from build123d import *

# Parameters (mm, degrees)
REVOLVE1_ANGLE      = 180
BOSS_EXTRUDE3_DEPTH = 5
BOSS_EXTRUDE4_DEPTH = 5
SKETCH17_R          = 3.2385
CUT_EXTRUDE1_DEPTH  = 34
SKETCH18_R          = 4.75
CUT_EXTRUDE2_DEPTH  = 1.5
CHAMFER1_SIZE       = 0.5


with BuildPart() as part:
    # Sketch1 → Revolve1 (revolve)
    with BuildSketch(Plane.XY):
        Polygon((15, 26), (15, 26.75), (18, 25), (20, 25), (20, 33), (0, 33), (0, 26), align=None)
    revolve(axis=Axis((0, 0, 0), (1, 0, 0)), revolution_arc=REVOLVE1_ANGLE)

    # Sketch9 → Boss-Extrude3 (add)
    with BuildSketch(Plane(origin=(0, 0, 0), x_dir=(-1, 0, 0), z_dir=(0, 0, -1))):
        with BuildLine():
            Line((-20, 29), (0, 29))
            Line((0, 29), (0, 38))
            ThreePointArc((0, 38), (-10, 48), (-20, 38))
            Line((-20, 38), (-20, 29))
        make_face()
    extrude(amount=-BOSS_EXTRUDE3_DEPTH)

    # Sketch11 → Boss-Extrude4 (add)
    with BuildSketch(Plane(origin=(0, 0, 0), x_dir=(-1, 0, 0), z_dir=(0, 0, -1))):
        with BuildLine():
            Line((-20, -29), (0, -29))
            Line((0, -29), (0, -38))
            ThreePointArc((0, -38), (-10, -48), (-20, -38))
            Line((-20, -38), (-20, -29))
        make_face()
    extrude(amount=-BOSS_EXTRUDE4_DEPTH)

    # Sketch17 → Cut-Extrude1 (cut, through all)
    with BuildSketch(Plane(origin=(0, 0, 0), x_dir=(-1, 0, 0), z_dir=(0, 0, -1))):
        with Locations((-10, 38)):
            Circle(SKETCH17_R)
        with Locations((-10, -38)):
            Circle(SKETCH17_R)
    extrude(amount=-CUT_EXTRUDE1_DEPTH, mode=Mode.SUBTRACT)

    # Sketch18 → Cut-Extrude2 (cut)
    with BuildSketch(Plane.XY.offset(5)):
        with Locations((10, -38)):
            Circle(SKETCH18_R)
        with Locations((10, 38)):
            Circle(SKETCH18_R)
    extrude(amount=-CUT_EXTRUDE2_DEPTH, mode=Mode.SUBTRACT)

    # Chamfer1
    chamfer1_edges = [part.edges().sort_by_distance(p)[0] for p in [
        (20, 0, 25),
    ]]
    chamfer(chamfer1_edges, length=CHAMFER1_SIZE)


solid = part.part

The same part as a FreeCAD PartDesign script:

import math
import FreeCAD as App
import Part
import Sketcher
Q = App.Units.Quantity


def edges_at(feature, points):
    """Names of the edges that pass closest to the given points."""
    edges = feature.Shape.Edges
    near = lambda p: min(range(len(edges)), key=lambda i: edges[i].distToShape(Part.Vertex(*p))[0])
    return sorted({f"Edge{near(p) + 1}" for p in points})

doc = App.newDocument("Part")
body = doc.addObject("PartDesign::Body", "Body")

sketch1 = doc.addObject("Sketcher::SketchObject", "Sketch")
body.addObject(sketch1)
sketch1.AttachmentSupport = (doc.XY_Plane, [""])
sketch1.MapMode = "FlatFace"
sketch1.addGeometry([
    Part.LineSegment(App.Vector(15, 26, 0), App.Vector(15, 26.75, 0)),
    Part.LineSegment(App.Vector(15, 26.75, 0), App.Vector(18, 25, 0)),
    Part.LineSegment(App.Vector(18, 25, 0), App.Vector(20, 25, 0)),
    Part.LineSegment(App.Vector(20, 25, 0), App.Vector(20, 33, 0)),
    Part.LineSegment(App.Vector(20, 33, 0), App.Vector(0, 33, 0)),
    Part.LineSegment(App.Vector(0, 33, 0), App.Vector(0, 26, 0)),
    Part.LineSegment(App.Vector(0, 26, 0), App.Vector(15, 26, 0)),
], False)
sketch1.addConstraint([
    Sketcher.Constraint("Coincident", 0, 2, 1, 1),
    Sketcher.Constraint("Coincident", 1, 2, 2, 1),
    Sketcher.Constraint("Coincident", 2, 2, 3, 1),
    Sketcher.Constraint("Coincident", 3, 2, 4, 1),
    Sketcher.Constraint("Coincident", 4, 2, 5, 1),
    Sketcher.Constraint("Coincident", 5, 2, 6, 1),
    Sketcher.Constraint("Coincident", 6, 2, 0, 1),
    Sketcher.Constraint("Vertical", 0),
    Sketcher.Constraint("Horizontal", 2),
    Sketcher.Constraint("Vertical", 3),
    Sketcher.Constraint("Horizontal", 4),
    Sketcher.Constraint("Vertical", 5),
    Sketcher.Constraint("Horizontal", 6),
    Sketcher.Constraint("PointOnObject", 4, 2, -2),
    Sketcher.Constraint("DistanceX", 2, 1, 2, 2, Q("2 mm")),
    Sketcher.Constraint("DistanceX", 4, 2, 4, 1, Q("20 mm")),
    Sketcher.Constraint("DistanceX", 6, 1, 6, 2, Q("15 mm")),
    Sketcher.Constraint("DistanceY", 3, 1, 3, 2, Q("8 mm")),
    Sketcher.Constraint("DistanceY", 5, 2, 5, 1, Q("7 mm")),
    Sketcher.Constraint("DistanceY", -1, 1, 1, 2, Q("25 mm")),
    Sketcher.Constraint("DistanceY", 0, 1, 0, 2, Q("0.75 mm")),
])
revolution = doc.addObject("PartDesign::Revolution", "Revolution")
body.addObject(revolution)
revolution.Profile = sketch1
revolution.ReferenceAxis = (sketch1, ["H_Axis"])
revolution.Angle = 180

sketch2 = doc.addObject("Sketcher::SketchObject", "Sketch001")
body.addObject(sketch2)
sketch2.AttachmentSupport = (doc.XY_Plane, [""])
sketch2.MapMode = "FlatFace"
sketch2.addGeometry([
    Part.LineSegment(App.Vector(20, 29, 0), App.Vector(0, 29, 0)),
    Part.LineSegment(App.Vector(0, 29, 0), App.Vector(0, 38, 0)),
    Part.ArcOfCircle(Part.Circle(App.Vector(10, 38, 0), App.Vector(0, 0, 1), 10), math.radians(0), math.radians(180)),
    Part.LineSegment(App.Vector(20, 38, 0), App.Vector(20, 29, 0)),
], False)
sketch2.addConstraint([
    Sketcher.Constraint("Coincident", 0, 2, 1, 1),
    Sketcher.Constraint("Tangent", 1, 2, 2, 2),
    Sketcher.Constraint("Tangent", 2, 1, 3, 1),
    Sketcher.Constraint("Coincident", 3, 2, 0, 1),
    Sketcher.Constraint("Horizontal", 0),
    Sketcher.Constraint("Vertical", 1),
    Sketcher.Constraint("Vertical", 3),
    Sketcher.Constraint("PointOnObject", 0, 2, -2),
    Sketcher.Constraint("Radius", 2, Q("10 mm")),
    Sketcher.Constraint("DistanceY", 1, 1, 1, 2, Q("9 mm")),
    Sketcher.Constraint("DistanceY", -1, 1, 2, 3, Q("38 mm")),
])
pad1 = doc.addObject("PartDesign::Pad", "Pad")
body.addObject(pad1)
pad1.Profile = sketch2
pad1.Length = 5

sketch3 = doc.addObject("Sketcher::SketchObject", "Sketch002")
body.addObject(sketch3)
sketch3.AttachmentSupport = (doc.XY_Plane, [""])
sketch3.MapMode = "FlatFace"
sketch3.addGeometry([
    Part.LineSegment(App.Vector(0, -29, 0), App.Vector(20, -29, 0)),
    Part.LineSegment(App.Vector(20, -29, 0), App.Vector(20, -38, 0)),
    Part.ArcOfCircle(Part.Circle(App.Vector(10, -38, 0), App.Vector(0, 0, 1), 10), math.radians(180), math.radians(360)),
    Part.LineSegment(App.Vector(0, -38, 0), App.Vector(0, -29, 0)),
], False)
sketch3.addConstraint([
    Sketcher.Constraint("Coincident", 0, 2, 1, 1),
    Sketcher.Constraint("Tangent", 1, 2, 2, 2),
    Sketcher.Constraint("Tangent", 2, 1, 3, 1),
    Sketcher.Constraint("Coincident", 3, 2, 0, 1),
    Sketcher.Constraint("Horizontal", 0),
    Sketcher.Constraint("Vertical", 1),
    Sketcher.Constraint("Vertical", 3),
    Sketcher.Constraint("PointOnObject", 2, 1, -2),
    Sketcher.Constraint("Radius", 2, Q("10 mm")),
    Sketcher.Constraint("DistanceY", 1, 2, 1, 1, Q("9 mm")),
    Sketcher.Constraint("DistanceY", 2, 3, -1, 1, Q("38 mm")),
])
pad2 = doc.addObject("PartDesign::Pad", "Pad001")
body.addObject(pad2)
pad2.Profile = sketch3
pad2.Length = 5

sketch4 = doc.addObject("Sketcher::SketchObject", "Sketch003")
body.addObject(sketch4)
sketch4.AttachmentSupport = (doc.XY_Plane, [""])
sketch4.MapMode = "FlatFace"
sketch4.addGeometry([
    Part.Circle(App.Vector(10, 38, 0), App.Vector(0, 0, 1), 3.2385),
    Part.Circle(App.Vector(10, -38, 0), App.Vector(0, 0, 1), 3.2385),
], False)
sketch4.addConstraint([
    Sketcher.Constraint("Equal", 0, 1),
    Sketcher.Constraint("Symmetric", 0, 3, 1, 3, -1),
    Sketcher.Constraint("Diameter", 0, Q("6.477 mm")),
    Sketcher.Constraint("DistanceX", -1, 1, 0, 3, Q("10 mm")),
    Sketcher.Constraint("DistanceY", -1, 1, 0, 3, Q("38 mm")),
])
pocket1 = doc.addObject("PartDesign::Pocket", "Pocket")
body.addObject(pocket1)
pocket1.Profile = sketch4
pocket1.Type = "ThroughAll"
pocket1.Reversed = True

sketch5 = doc.addObject("Sketcher::SketchObject", "Sketch004")
body.addObject(sketch5)
sketch5.AttachmentSupport = (doc.XY_Plane, [""])
sketch5.MapMode = "FlatFace"
sketch5.AttachmentOffset = App.Placement(App.Vector(0, 0, 5), App.Rotation())
sketch5.addGeometry([
    Part.Circle(App.Vector(10, -38, 0), App.Vector(0, 0, 1), 4.75),
    Part.Circle(App.Vector(10, 38, 0), App.Vector(0, 0, 1), 4.75),
], False)
sketch5.addConstraint([
    Sketcher.Constraint("Equal", 0, 1),
    Sketcher.Constraint("Symmetric", 0, 3, 1, 3, -1),
    Sketcher.Constraint("Diameter", 0, Q("9.5 mm")),
    Sketcher.Constraint("DistanceX", -1, 1, 0, 3, Q("10 mm")),
    Sketcher.Constraint("DistanceY", 0, 3, -1, 1, Q("38 mm")),
])
pocket2 = doc.addObject("PartDesign::Pocket", "Pocket001")
body.addObject(pocket2)
pocket2.Profile = sketch5
pocket2.Length = 1.5
doc.recompute()

chamfer = doc.addObject("PartDesign::Chamfer", "Chamfer")
body.addObject(chamfer)
chamfer.Base = (pocket2, edges_at(pocket2, [(20, 0, 25)]))
chamfer.Size = 0.5

doc.recompute()
